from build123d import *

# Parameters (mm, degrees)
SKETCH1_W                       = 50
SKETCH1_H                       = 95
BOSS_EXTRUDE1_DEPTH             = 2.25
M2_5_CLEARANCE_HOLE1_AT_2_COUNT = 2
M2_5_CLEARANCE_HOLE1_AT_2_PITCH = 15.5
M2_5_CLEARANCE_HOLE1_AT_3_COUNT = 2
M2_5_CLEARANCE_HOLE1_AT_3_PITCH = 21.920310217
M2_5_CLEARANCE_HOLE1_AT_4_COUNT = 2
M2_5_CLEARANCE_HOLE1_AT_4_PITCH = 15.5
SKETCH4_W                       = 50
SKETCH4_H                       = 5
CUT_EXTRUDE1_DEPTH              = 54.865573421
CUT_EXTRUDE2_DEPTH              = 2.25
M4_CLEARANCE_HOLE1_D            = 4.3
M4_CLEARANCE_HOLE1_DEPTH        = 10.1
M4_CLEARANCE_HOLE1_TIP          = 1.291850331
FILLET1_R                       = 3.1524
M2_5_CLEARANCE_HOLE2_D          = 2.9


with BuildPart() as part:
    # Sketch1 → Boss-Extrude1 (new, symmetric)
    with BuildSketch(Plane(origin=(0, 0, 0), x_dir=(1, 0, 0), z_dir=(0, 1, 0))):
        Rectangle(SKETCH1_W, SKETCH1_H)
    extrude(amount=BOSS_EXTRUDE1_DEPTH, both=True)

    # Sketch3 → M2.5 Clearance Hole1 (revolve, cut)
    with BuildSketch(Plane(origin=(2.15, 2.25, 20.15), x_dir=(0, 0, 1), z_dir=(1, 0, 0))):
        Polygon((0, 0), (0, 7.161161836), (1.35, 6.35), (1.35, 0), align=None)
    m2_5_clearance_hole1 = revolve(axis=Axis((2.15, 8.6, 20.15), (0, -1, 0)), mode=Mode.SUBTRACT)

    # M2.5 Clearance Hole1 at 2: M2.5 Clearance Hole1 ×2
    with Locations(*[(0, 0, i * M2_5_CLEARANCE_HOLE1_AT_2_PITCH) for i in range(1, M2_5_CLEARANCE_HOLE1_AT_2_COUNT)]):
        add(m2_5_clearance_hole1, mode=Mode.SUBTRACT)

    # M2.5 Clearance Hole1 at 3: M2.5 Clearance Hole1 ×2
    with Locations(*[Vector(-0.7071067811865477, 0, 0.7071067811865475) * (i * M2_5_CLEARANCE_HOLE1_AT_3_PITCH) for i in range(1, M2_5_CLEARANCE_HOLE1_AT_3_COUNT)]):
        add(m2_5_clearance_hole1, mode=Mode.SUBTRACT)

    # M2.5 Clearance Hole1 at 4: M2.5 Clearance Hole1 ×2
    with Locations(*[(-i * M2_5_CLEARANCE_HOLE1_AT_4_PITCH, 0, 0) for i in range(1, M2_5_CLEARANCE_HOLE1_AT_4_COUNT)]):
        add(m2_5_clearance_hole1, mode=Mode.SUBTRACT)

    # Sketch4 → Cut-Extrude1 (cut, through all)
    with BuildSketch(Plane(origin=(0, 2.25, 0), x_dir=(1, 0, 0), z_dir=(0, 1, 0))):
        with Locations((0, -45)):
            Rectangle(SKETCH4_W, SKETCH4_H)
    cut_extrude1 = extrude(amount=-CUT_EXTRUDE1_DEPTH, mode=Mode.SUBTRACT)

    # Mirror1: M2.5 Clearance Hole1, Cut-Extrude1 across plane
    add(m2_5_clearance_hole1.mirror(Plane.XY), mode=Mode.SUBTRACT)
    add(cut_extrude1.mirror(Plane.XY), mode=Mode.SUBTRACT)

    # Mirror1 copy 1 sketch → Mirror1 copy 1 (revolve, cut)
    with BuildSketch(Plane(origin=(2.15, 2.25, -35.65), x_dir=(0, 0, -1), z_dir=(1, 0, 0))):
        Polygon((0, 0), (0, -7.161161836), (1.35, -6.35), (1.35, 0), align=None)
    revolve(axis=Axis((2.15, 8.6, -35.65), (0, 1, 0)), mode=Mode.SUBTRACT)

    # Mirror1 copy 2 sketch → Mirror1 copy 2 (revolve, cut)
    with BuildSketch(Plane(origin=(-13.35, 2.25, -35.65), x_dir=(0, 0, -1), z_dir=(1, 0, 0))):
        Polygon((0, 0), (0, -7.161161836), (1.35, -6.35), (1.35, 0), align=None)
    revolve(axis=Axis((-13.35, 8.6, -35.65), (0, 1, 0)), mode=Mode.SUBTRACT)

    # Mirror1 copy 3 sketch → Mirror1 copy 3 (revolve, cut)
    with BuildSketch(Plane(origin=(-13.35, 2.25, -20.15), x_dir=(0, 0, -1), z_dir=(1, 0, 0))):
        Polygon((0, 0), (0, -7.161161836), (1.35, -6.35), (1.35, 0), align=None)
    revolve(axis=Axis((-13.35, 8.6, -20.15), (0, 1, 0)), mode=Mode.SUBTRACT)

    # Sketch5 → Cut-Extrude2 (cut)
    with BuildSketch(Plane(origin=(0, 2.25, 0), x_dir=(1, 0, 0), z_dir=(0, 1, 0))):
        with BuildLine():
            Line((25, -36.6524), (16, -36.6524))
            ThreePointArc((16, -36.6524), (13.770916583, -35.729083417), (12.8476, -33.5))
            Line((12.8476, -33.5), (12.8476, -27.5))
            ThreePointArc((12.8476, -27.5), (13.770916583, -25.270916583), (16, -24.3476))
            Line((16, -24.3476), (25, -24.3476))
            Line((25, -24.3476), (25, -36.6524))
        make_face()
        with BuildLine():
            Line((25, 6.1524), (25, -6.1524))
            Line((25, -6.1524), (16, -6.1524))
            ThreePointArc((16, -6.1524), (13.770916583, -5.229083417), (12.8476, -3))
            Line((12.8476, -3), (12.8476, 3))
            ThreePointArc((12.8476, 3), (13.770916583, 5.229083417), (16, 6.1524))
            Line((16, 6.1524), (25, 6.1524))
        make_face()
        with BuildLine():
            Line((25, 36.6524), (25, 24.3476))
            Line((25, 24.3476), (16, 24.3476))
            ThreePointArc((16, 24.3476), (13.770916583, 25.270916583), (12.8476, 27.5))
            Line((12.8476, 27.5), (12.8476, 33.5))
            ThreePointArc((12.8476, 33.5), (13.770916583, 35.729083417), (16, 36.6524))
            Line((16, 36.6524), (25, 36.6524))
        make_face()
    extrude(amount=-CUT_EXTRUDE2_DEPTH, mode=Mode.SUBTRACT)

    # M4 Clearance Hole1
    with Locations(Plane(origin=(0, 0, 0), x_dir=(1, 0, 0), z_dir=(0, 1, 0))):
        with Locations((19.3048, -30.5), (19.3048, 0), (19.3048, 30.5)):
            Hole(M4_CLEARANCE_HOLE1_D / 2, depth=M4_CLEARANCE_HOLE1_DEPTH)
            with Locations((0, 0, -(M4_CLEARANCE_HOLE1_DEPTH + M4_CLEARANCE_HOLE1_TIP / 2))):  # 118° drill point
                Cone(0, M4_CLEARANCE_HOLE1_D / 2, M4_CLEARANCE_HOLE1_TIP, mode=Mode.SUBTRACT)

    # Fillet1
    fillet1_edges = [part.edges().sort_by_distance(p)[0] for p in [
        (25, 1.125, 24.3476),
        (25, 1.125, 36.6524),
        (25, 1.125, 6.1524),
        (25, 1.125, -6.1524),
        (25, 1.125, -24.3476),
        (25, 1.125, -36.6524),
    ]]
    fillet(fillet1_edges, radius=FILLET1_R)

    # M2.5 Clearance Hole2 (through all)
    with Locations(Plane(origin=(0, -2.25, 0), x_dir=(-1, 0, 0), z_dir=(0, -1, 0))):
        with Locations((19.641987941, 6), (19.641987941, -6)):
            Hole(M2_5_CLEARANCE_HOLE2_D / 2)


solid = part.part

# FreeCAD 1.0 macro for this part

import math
import FreeCAD as App
import Part
import Sketcher
from FreeCAD import Vector
Q = App.Units.Quantity


def edges_at(feature, points):
    """Names of the edges that pass closest to the given points."""
    edges = feature.Shape.Edges
    near = lambda p: min(range(len(edges)), key=lambda i: edges[i].distToShape(Part.Vertex(*p))[0])
    return sorted({f"Edge{near(p) + 1}" for p in points})


def add_polygon(sketch, points):
    """Adds a closed chain of lines whose ends are joined by coincident constraints."""
    first, n = sketch.GeometryCount, len(points)
    for a, b in zip(points, points[1:] + points[:1]):
        sketch.addGeometry(Part.LineSegment(App.Vector(*a, 0), App.Vector(*b, 0)), False)
    for i in range(n):
        sketch.addConstraint(Sketcher.Constraint("Coincident", first + i, 2, first + (i + 1) % n, 1))

doc = App.newDocument("Part")
params = doc.addObject("Spreadsheet::Sheet", "Params")
for row, (alias, value) in enumerate([
    ("sketch1_width", "50 mm"),
    ("sketch1_height", "95 mm"),
    ("pad1_length", "4.5 mm"),
    ("sketch2_width", "6.35 mm"),
    ("sketch2_height", "1.35 mm"),
    ("groove_angle", "360 deg"),
    ("linearpattern_pitch", "15.5 mm"),
    ("linearpattern2_pitch", "21.92031 mm"),
    ("linearpattern3_pitch", "15.5 mm"),
    ("sketch3_width", "50 mm"),
    ("sketch3_height", "5 mm"),
    ("sketch4_width", "6.35 mm"),
    ("sketch4_height", "1.35 mm"),
    ("groove2_angle", "360 deg"),
    ("sketch5_width", "6.35 mm"),
    ("sketch5_height", "1.35 mm"),
    ("groove3_angle", "360 deg"),
    ("sketch6_width", "6.35 mm"),
    ("sketch6_height", "1.35 mm"),
    ("groove4_angle", "360 deg"),
    ("sketch7_width", "9 mm"),
    ("sketch7_height", "6 mm"),
    ("pocket2_length", "2.25 mm"),
    ("sketch8_diameter", "4.3 mm"),
    ("hole_diameter", "4.3 mm"),
    ("hole_depth", "10.1 mm"),
    ("fillet_radius", "3.1524 mm"),
    ("sketch9_diameter", "2.9 mm"),
    ("hole2_diameter", "2.9 mm"),
], start=1):
    params.set(f"A{row}", alias)
    params.set(f"B{row}", "=" + value)
    params.setAlias(f"B{row}", alias)

body = doc.addObject("PartDesign::Body", "Body")

sketch1 = body.newObject("Sketcher::SketchObject", "Sketch")
sketch1.AttachmentSupport = (doc.getObject("XZ_Plane"), [""])
sketch1.MapMode = "FlatFace"
add_polygon(sketch1, [(-25, -48), (-25, 48), (25, 48), (25, -48)])
sketch1.addConstraint(Sketcher.Constraint("Vertical", 0))
sketch1.addConstraint(Sketcher.Constraint("Horizontal", 1))
sketch1.addConstraint(Sketcher.Constraint("Vertical", 2))
sketch1.addConstraint(Sketcher.Constraint("Horizontal", 3))
sketch1.addConstraint(Sketcher.Constraint("Symmetric", 0, 2, 2, 2, -1, 1))
sketch1.addConstraint(Sketcher.Constraint("DistanceX", 1, 1, 1, 2, Q("50 mm")))
sketch1.addConstraint(Sketcher.Constraint("DistanceY", 0, 1, 0, 2, Q("95 mm")))
sketch1.setExpression("Constraints[9]", "Params.sketch1_width")
sketch1.setExpression("Constraints[10]", "Params.sketch1_height")
pad1 = body.newObject("PartDesign::Pad", "Pad")
pad1.Profile = sketch1
pad1.setExpression("Length", "Params.pad1_length")
pad1.Midplane = True

sketch2 = body.newObject("Sketcher::SketchObject", "Sketch001")
sketch2.AttachmentSupport = (doc.getObject("YZ_Plane"), [""])
sketch2.MapMode = "FlatFace"
sketch2.AttachmentOffset = App.Placement(Vector(0, 0, 2.15), App.Rotation())
add_polygon(sketch2, [(-4.9, 20.1), (2.2, 20.1), (2.2, 21.5), (-4.1, 21.5)])
sketch2.addGeometry(Part.LineSegment(Vector(2.2, 20.1, 0), Vector(-4.9, 20.1, 0)), True)
sketch2.addConstraint(Sketcher.Constraint("Horizontal", 0))
sketch2.addConstraint(Sketcher.Constraint("Vertical", 1))
sketch2.addConstraint(Sketcher.Constraint("Horizontal", 2))
sketch2.addConstraint(Sketcher.Constraint("Horizontal", 4))
sketch2.addConstraint(Sketcher.Constraint("Coincident", 4, 1, 0, 2))
sketch2.addConstraint(Sketcher.Constraint("Equal", 0, 4))
sketch2.addConstraint(Sketcher.Constraint("Angle", 3, Q("-121 deg")))
sketch2.addConstraint(Sketcher.Constraint("DistanceX", 2, 2, 2, 1, Q("6.35 mm")))
sketch2.addConstraint(Sketcher.Constraint("DistanceY", 1, 1, 1, 2, Q("1.35 mm")))
sketch2.addConstraint(Sketcher.Constraint("DistanceY", -1, 1, 1, 2, Q("21.5 mm")))
sketch2.addConstraint(Sketcher.Constraint("DistanceX", 2, 2, -1, 1, Q("4.1 mm")))
sketch2.setExpression("Constraints[11]", "Params.sketch2_width")
sketch2.setExpression("Constraints[12]", "Params.sketch2_height")
groove = body.newObject("PartDesign::Groove", "Groove")
groove.Profile = sketch2
groove.ReferenceAxis = (sketch2, ["Axis0"])
groove.setExpression("Angle", "Params.groove_angle")
doc.recompute()

linearpattern = body.newObject("PartDesign::LinearPattern", "LinearPattern")
linearpattern.Originals = [groove]
linearpattern.Direction = (doc.getObject("Z_Axis"), [""])
linearpattern.Mode = "offset"
linearpattern.setExpression("Offset", "Params.linearpattern_pitch")
linearpattern.Occurrences = 2
body.Tip = linearpattern
doc.recompute()

datumline = body.newObject("PartDesign::Line", "DatumLine")
datumline.Placement = App.Placement(Vector(0, 0, 0), App.Rotation(Vector(0, 0, 1), Vector(-0.707106781, 0, 0.707106781)))
linearpattern2 = body.newObject("PartDesign::LinearPattern", "LinearPattern001")
linearpattern2.Originals = [groove]
linearpattern2.Direction = (datumline, [""])
linearpattern2.Mode = "offset"
linearpattern2.setExpression("Offset", "Params.linearpattern2_pitch")
linearpattern2.Occurrences = 2
body.Tip = linearpattern2
doc.recompute()

linearpattern3 = body.newObject("PartDesign::LinearPattern", "LinearPattern002")
linearpattern3.Originals = [groove]
linearpattern3.Direction = (doc.getObject("X_Axis"), [""])
linearpattern3.Mode = "offset"
linearpattern3.setExpression("Offset", "Params.linearpattern3_pitch")
linearpattern3.Occurrences = 2
linearpattern3.Reversed = True
body.Tip = linearpattern3

sketch3 = body.newObject("Sketcher::SketchObject", "Sketch002")
sketch3.AttachmentSupport = (doc.getObject("XZ_Plane"), [""])
sketch3.MapMode = "FlatFace"
sketch3.AttachmentOffset = App.Placement(Vector(0, 0, -2.25), App.Rotation())
add_polygon(sketch3, [(-25, 42), (-25, 48), (25, 48), (25, 42)])
sketch3.addConstraint(Sketcher.Constraint("Vertical", 0))
sketch3.addConstraint(Sketcher.Constraint("Horizontal", 1))
sketch3.addConstraint(Sketcher.Constraint("Vertical", 2))
sketch3.addConstraint(Sketcher.Constraint("Horizontal", 3))
sketch3.addConstraint(Sketcher.Constraint("DistanceX", 1, 1, 1, 2, Q("50 mm")))
sketch3.addConstraint(Sketcher.Constraint("DistanceY", 0, 1, 0, 2, Q("5 mm")))
sketch3.addConstraint(Sketcher.Constraint("DistanceX", 0, 2, -1, 1, Q("25 mm")))
sketch3.addConstraint(Sketcher.Constraint("DistanceY", -1, 1, 0, 2, Q("47.5 mm")))
sketch3.setExpression("Constraints[8]", "Params.sketch3_width")
sketch3.setExpression("Constraints[9]", "Params.sketch3_height")
pocket1 = body.newObject("PartDesign::Pocket", "Pocket")
pocket1.Profile = sketch3
pocket1.Type = "ThroughAll"
pocket1.Reversed = True
doc.recompute()

mirrored = body.newObject("PartDesign::Mirrored", "Mirrored")
mirrored.Originals = [groove, pocket1]
mirrored.MirrorPlane = (doc.getObject("XY_Plane"), [""])
body.Tip = mirrored

sketch4 = body.newObject("Sketcher::SketchObject", "Sketch003")
sketch4.AttachmentSupport = (doc.getObject("YZ_Plane"), [""])
sketch4.MapMode = "FlatFace"
sketch4.AttachmentOffset = App.Placement(Vector(0, 0, 2.15), App.Rotation())
add_polygon(sketch4, [(2.2, -35.6), (-4.9, -35.6), (-4.1, -37), (2.2, -37)])
sketch4.addGeometry(Part.LineSegment(Vector(-4.9, -35.6, 0), Vector(2.2, -35.6, 0)), True)
sketch4.addConstraint(Sketcher.Constraint("Horizontal", 0))
sketch4.addConstraint(Sketcher.Constraint("Horizontal", 2))
sketch4.addConstraint(Sketcher.Constraint("Vertical", 3))
sketch4.addConstraint(Sketcher.Constraint("Horizontal", 4))
sketch4.addConstraint(Sketcher.Constraint("Coincident", 4, 1, 0, 2))
sketch4.addConstraint(Sketcher.Constraint("Vertical", 2, 2, 4, 2))
sketch4.addConstraint(Sketcher.Constraint("Angle", 1, Q("-59 deg")))
sketch4.addConstraint(Sketcher.Constraint("DistanceY", 1, 2, -1, 1, Q("37 mm")))
sketch4.addConstraint(Sketcher.Constraint("DistanceX", 2, 1, 2, 2, Q("6.35 mm")))
sketch4.addConstraint(Sketcher.Constraint("DistanceY", 3, 1, 3, 2, Q("1.35 mm")))
sketch4.addConstraint(Sketcher.Constraint("DistanceX", 1, 2, -1, 1, Q("4.1 mm")))
sketch4.setExpression("Constraints[12]", "Params.sketch4_width")
sketch4.setExpression("Constraints[13]", "Params.sketch4_height")
groove2 = body.newObject("PartDesign::Groove", "Groove001")
groove2.Profile = sketch4
groove2.ReferenceAxis = (sketch4, ["Axis0"])
groove2.setExpression("Angle", "Params.groove2_angle")

sketch5 = body.newObject("Sketcher::SketchObject", "Sketch004")
sketch5.AttachmentSupport = (doc.getObject("YZ_Plane"), [""])
sketch5.MapMode = "FlatFace"
sketch5.AttachmentOffset = App.Placement(Vector(0, 0, -13.35), App.Rotation())
add_polygon(sketch5, [(2.2, -35.6), (-4.9, -35.6), (-4.1, -37), (2.2, -37)])
sketch5.addGeometry(Part.LineSegment(Vector(-4.9, -35.6, 0), Vector(2.2, -35.6, 0)), True)
sketch5.addConstraint(Sketcher.Constraint("Horizontal", 0))
sketch5.addConstraint(Sketcher.Constraint("Horizontal", 2))
sketch5.addConstraint(Sketcher.Constraint("Vertical", 3))
sketch5.addConstraint(Sketcher.Constraint("Horizontal", 4))
sketch5.addConstraint(Sketcher.Constraint("Coincident", 4, 1, 0, 2))
sketch5.addConstraint(Sketcher.Constraint("Vertical", 2, 2, 4, 2))
sketch5.addConstraint(Sketcher.Constraint("Angle", 1, Q("-59 deg")))
sketch5.addConstraint(Sketcher.Constraint("DistanceY", 1, 2, -1, 1, Q("37 mm")))
sketch5.addConstraint(Sketcher.Constraint("DistanceX", 2, 1, 2, 2, Q("6.35 mm")))
sketch5.addConstraint(Sketcher.Constraint("DistanceY", 3, 1, 3, 2, Q("1.35 mm")))
sketch5.addConstraint(Sketcher.Constraint("DistanceX", 1, 2, -1, 1, Q("4.1 mm")))
sketch5.setExpression("Constraints[12]", "Params.sketch5_width")
sketch5.setExpression("Constraints[13]", "Params.sketch5_height")
groove3 = body.newObject("PartDesign::Groove", "Groove002")
groove3.Profile = sketch5
groove3.ReferenceAxis = (sketch5, ["Axis0"])
groove3.setExpression("Angle", "Params.groove3_angle")

sketch6 = body.newObject("Sketcher::SketchObject", "Sketch005")
sketch6.AttachmentSupport = (doc.getObject("YZ_Plane"), [""])
sketch6.MapMode = "FlatFace"
sketch6.AttachmentOffset = App.Placement(Vector(0, 0, -13.35), App.Rotation())
add_polygon(sketch6, [(2.2, -20.1), (-4.9, -20.1), (-4.1, -21.5), (2.2, -21.5)])
sketch6.addGeometry(Part.LineSegment(Vector(-4.9, -20.1, 0), Vector(2.2, -20.1, 0)), True)
sketch6.addConstraint(Sketcher.Constraint("Horizontal", 0))
sketch6.addConstraint(Sketcher.Constraint("Horizontal", 2))
sketch6.addConstraint(Sketcher.Constraint("Vertical", 3))
sketch6.addConstraint(Sketcher.Constraint("Horizontal", 4))
sketch6.addConstraint(Sketcher.Constraint("Coincident", 4, 1, 0, 2))
sketch6.addConstraint(Sketcher.Constraint("Vertical", 2, 2, 4, 2))
sketch6.addConstraint(Sketcher.Constraint("Angle", 1, Q("-59 deg")))
sketch6.addConstraint(Sketcher.Constraint("DistanceX", 2, 1, 2, 2, Q("6.35 mm")))
sketch6.addConstraint(Sketcher.Constraint("DistanceY", 3, 1, 3, 2, Q("1.35 mm")))
sketch6.addConstraint(Sketcher.Constraint("DistanceX", 1, 2, -1, 1, Q("4.1 mm")))
sketch6.addConstraint(Sketcher.Constraint("DistanceY", 1, 2, -1, 1, Q("21.5 mm")))
sketch6.setExpression("Constraints[11]", "Params.sketch6_width")
sketch6.setExpression("Constraints[12]", "Params.sketch6_height")
groove4 = body.newObject("PartDesign::Groove", "Groove003")
groove4.Profile = sketch6
groove4.ReferenceAxis = (sketch6, ["Axis0"])
groove4.setExpression("Angle", "Params.groove4_angle")

sketch7 = body.newObject("Sketcher::SketchObject", "Sketch006")
sketch7.AttachmentSupport = (doc.getObject("XZ_Plane"), [""])
sketch7.MapMode = "FlatFace"
sketch7.AttachmentOffset = App.Placement(Vector(0, 0, -2.25), App.Rotation())
sketch7.addGeometry(Part.LineSegment(Vector(16, 36.7, 0), Vector(25, 36.7, 0)), False)
sketch7.addGeometry(Part.LineSegment(Vector(25, 36.7, 0), Vector(25, 24.3, 0)), False)
sketch7.addGeometry(Part.LineSegment(Vector(25, 24.3, 0), Vector(16, 24.3, 0)), False)
sketch7.addGeometry(Part.ArcOfCircle(Part.Circle(Vector(16, 27.5, 0), Vector(0, 0, 1), 3.2), math.radians(180), math.radians(270)), False)
sketch7.addGeometry(Part.LineSegment(Vector(12.8, 27.5, 0), Vector(12.8, 33.5, 0)), False)
sketch7.addGeometry(Part.ArcOfCircle(Part.Circle(Vector(16, 33.5, 0), Vector(0, 0, 1), 3.2), math.radians(90), math.radians(180)), False)
sketch7.addGeometry(Part.LineSegment(Vector(25, 6.2, 0), Vector(25, -6.2, 0)), False)
sketch7.addGeometry(Part.LineSegment(Vector(25, -6.2, 0), Vector(16, -6.2, 0)), False)
sketch7.addGeometry(Part.ArcOfCircle(Part.Circle(Vector(16, -3, 0), Vector(0, 0, 1), 3.2), math.radians(180), math.radians(270)), False)
sketch7.addGeometry(Part.LineSegment(Vector(12.8, -3, 0), Vector(12.8, 3, 0)), False)
sketch7.addGeometry(Part.ArcOfCircle(Part.Circle(Vector(16, 3, 0), Vector(0, 0, 1), 3.2), math.radians(90), math.radians(180)), False)
sketch7.addGeometry(Part.LineSegment(Vector(16, 6.2, 0), Vector(25, 6.2, 0)), False)
sketch7.addGeometry(Part.LineSegment(Vector(25, -24.3, 0), Vector(25, -36.7, 0)), False)
sketch7.addGeometry(Part.LineSegment(Vector(25, -36.7, 0), Vector(16, -36.7, 0)), False)
sketch7.addGeometry(Part.ArcOfCircle(Part.Circle(Vector(16, -33.5, 0), Vector(0, 0, 1), 3.2), math.radians(180), math.radians(270)), False)
sketch7.addGeometry(Part.LineSegment(Vector(12.8, -33.5, 0), Vector(12.8, -27.5, 0)), False)
sketch7.addGeometry(Part.ArcOfCircle(Part.Circle(Vector(16, -27.5, 0), Vector(0, 0, 1), 3.2), math.radians(90), math.radians(180)), False)
sketch7.addGeometry(Part.LineSegment(Vector(16, -24.3, 0), Vector(25, -24.3, 0)), False)
sketch7.addConstraint(Sketcher.Constraint("Coincident", 0, 2, 1, 1))
sketch7.addConstraint(Sketcher.Constraint("Coincident", 1, 2, 2, 1))
sketch7.addConstraint(Sketcher.Constraint("Tangent", 2, 2, 3, 2))
sketch7.addConstraint(Sketcher.Constraint("Tangent", 3, 1, 4, 1))
sketch7.addConstraint(Sketcher.Constraint("Tangent", 4, 2, 5, 2))
sketch7.addConstraint(Sketcher.Constraint("Tangent", 5, 1, 0, 1))
sketch7.addConstraint(Sketcher.Constraint("Coincident", 6, 2, 7, 1))
sketch7.addConstraint(Sketcher.Constraint("Tangent", 7, 2, 8, 2))
sketch7.addConstraint(Sketcher.Constraint("Tangent", 8, 1, 9, 1))
sketch7.addConstraint(Sketcher.Constraint("Tangent", 9, 2, 10, 2))
sketch7.addConstraint(Sketcher.Constraint("Tangent", 10, 1, 11, 1))
sketch7.addConstraint(Sketcher.Constraint("Coincident", 11, 2, 6, 1))
sketch7.addConstraint(Sketcher.Constraint("Coincident", 12, 2, 13, 1))
sketch7.addConstraint(Sketcher.Constraint("Tangent", 13, 2, 14, 2))
sketch7.addConstraint(Sketcher.Constraint("Tangent", 14, 1, 15, 1))
sketch7.addConstraint(Sketcher.Constraint("Tangent", 15, 2, 16, 2))
sketch7.addConstraint(Sketcher.Constraint("Tangent", 16, 1, 17, 1))
sketch7.addConstraint(Sketcher.Constraint("Coincident", 17, 2, 12, 1))
sketch7.addConstraint(Sketcher.Constraint("Horizontal", 0))
sketch7.addConstraint(Sketcher.Constraint("Vertical", 1))
sketch7.addConstraint(Sketcher.Constraint("Horizontal", 2))
sketch7.addConstraint(Sketcher.Constraint("Vertical", 4))
sketch7.addConstraint(Sketcher.Constraint("Vertical", 6))
sketch7.addConstraint(Sketcher.Constraint("Horizontal", 7))
sketch7.addConstraint(Sketcher.Constraint("Vertical", 9))
sketch7.addConstraint(Sketcher.Constraint("Horizontal", 11))
sketch7.addConstraint(Sketcher.Constraint("Vertical", 12))
sketch7.addConstraint(Sketcher.Constraint("Horizontal", 13))
sketch7.addConstraint(Sketcher.Constraint("Vertical", 15))
sketch7.addConstraint(Sketcher.Constraint("Horizontal", 17))
sketch7.addConstraint(Sketcher.Constraint("Equal", 3, 5))
sketch7.addConstraint(Sketcher.Constraint("Equal", 5, 8))
sketch7.addConstraint(Sketcher.Constraint("Equal", 8, 10))
sketch7.addConstraint(Sketcher.Constraint("Equal", 10, 14))
sketch7.addConstraint(Sketcher.Constraint("Equal", 14, 16))
sketch7.addConstraint(Sketcher.Constraint("Symmetric", 5, 3, 14, 3, -1))
sketch7.addConstraint(Sketcher.Constraint("Symmetric", 1, 2, 17, 2, -1))
sketch7.addConstraint(Sketcher.Constraint("Vertical", 5, 3, 8, 3))
sketch7.addConstraint(Sketcher.Constraint("Vertical", 1, 2, 6, 2))
sketch7.addConstraint(Sketcher.Constraint("Equal", 1, 6))
sketch7.addConstraint(Sketcher.Constraint("DistanceX", 0, 1, 0, 2, Q("9 mm")))
sketch7.addConstraint(Sketcher.Constraint("DistanceY", 4, 1, 4, 2, Q("6 mm")))
sketch7.addConstraint(Sketcher.Constraint("DistanceX", -1, 1, 3, 3, Q("16 mm")))
sketch7.addConstraint(Sketcher.Constraint("DistanceY", 8, 3, -1, 1, Q("3 mm")))
sketch7.addConstraint(Sketcher.Constraint("DistanceY", 14, 3, 3, 3, Q("61 mm")))
sketch7.addConstraint(Sketcher.Constraint("Radius", 3, Q("3.1524 mm")))
sketch7.setExpression("Constraints[40]", "Params.sketch7_width")
sketch7.setExpression("Constraints[41]", "Params.sketch7_height")
pocket2 = body.newObject("PartDesign::Pocket", "Pocket001")
pocket2.Profile = sketch7
pocket2.setExpression("Length", "Params.pocket2_length")
pocket2.Reversed = True

sketch8 = body.newObject("Sketcher::SketchObject", "Sketch007")
sketch8.AttachmentSupport = (doc.getObject("XZ_Plane"), [""])
sketch8.MapMode = "FlatFace"
sketch8.addGeometry(Part.Circle(Vector(19.3, 30.5, 0), Vector(0, 0, 1), 2.1), False)
sketch8.addGeometry(Part.Circle(Vector(19.3, 0, 0), Vector(0, 0, 1), 2.1), False)
sketch8.addGeometry(Part.Circle(Vector(19.3, -30.5, 0), Vector(0, 0, 1), 2.1), False)
sketch8.addConstraint(Sketcher.Constraint("Equal", 0, 1))
sketch8.addConstraint(Sketcher.Constraint("Equal", 1, 2))
sketch8.addConstraint(Sketcher.Constraint("Symmetric", 0, 3, 2, 3, -1))
sketch8.addConstraint(Sketcher.Constraint("PointOnObject", 1, 3, -1))
sketch8.addConstraint(Sketcher.Constraint("Vertical", 0, 3, 1, 3))
sketch8.addConstraint(Sketcher.Constraint("Diameter", 0, Q("4.3 mm")))
sketch8.addConstraint(Sketcher.Constraint("DistanceY", 2, 3, 0, 3, Q("61 mm")))
sketch8.addConstraint(Sketcher.Constraint("DistanceX", -1, 1, 0, 3, Q("19.3048 mm")))
sketch8.setExpression("Constraints[5]", "Params.sketch8_diameter")
doc.recompute()
hole = body.newObject("PartDesign::Hole", "Hole")
hole.Profile = sketch8
hole.ThreadType = "None"
hole.setExpression("Diameter", "Params.hole_diameter")
hole.DepthType = "Dimension"
hole.setExpression("Depth", "Params.hole_depth")
hole.DrillPoint = "Angled"
hole.DrillPointAngle = 118
hole.Reversed = True
doc.recompute()

fillet = body.newObject("PartDesign::Fillet", "Fillet")
fillet.Base = (hole, edges_at(hole, [
    (25, 1.125, 24.348),
    (25, 1.125, 36.652),
    (25, 1.125, 6.152),
    (25, 1.125, -6.152),
    (25, 1.125, -24.348),
    (25, 1.125, -36.652),
]))
fillet.setExpression("Radius", "Params.fillet_radius")

sketch9 = body.newObject("Sketcher::SketchObject", "Sketch008")
sketch9.AttachmentSupport = (doc.getObject("XZ_Plane"), [""])
sketch9.MapMode = "FlatFace"
sketch9.AttachmentOffset = App.Placement(Vector(0, 0, 2.25), App.Rotation())
sketch9.addGeometry(Part.Circle(Vector(-19.6, -6, 0), Vector(0, 0, 1), 1.4), False)
sketch9.addGeometry(Part.Circle(Vector(-19.6, 6, 0), Vector(0, 0, 1), 1.4), False)
sketch9.addConstraint(Sketcher.Constraint("Equal", 0, 1))
sketch9.addConstraint(Sketcher.Constraint("Symmetric", 0, 3, 1, 3, -1))
sketch9.addConstraint(Sketcher.Constraint("Diameter", 0, Q("2.9 mm")))
sketch9.addConstraint(Sketcher.Constraint("DistanceY", 0, 3, -1, 1, Q("6 mm")))
sketch9.addConstraint(Sketcher.Constraint("DistanceX", 0, 3, -1, 1, Q("19.641988 mm")))
sketch9.setExpression("Constraints[2]", "Params.sketch9_diameter")
doc.recompute()
hole2 = body.newObject("PartDesign::Hole", "Hole001")
hole2.Profile = sketch9
hole2.ThreadType = "None"
hole2.setExpression("Diameter", "Params.hole2_diameter")
hole2.DepthType = "ThroughAll"

doc.recompute()
